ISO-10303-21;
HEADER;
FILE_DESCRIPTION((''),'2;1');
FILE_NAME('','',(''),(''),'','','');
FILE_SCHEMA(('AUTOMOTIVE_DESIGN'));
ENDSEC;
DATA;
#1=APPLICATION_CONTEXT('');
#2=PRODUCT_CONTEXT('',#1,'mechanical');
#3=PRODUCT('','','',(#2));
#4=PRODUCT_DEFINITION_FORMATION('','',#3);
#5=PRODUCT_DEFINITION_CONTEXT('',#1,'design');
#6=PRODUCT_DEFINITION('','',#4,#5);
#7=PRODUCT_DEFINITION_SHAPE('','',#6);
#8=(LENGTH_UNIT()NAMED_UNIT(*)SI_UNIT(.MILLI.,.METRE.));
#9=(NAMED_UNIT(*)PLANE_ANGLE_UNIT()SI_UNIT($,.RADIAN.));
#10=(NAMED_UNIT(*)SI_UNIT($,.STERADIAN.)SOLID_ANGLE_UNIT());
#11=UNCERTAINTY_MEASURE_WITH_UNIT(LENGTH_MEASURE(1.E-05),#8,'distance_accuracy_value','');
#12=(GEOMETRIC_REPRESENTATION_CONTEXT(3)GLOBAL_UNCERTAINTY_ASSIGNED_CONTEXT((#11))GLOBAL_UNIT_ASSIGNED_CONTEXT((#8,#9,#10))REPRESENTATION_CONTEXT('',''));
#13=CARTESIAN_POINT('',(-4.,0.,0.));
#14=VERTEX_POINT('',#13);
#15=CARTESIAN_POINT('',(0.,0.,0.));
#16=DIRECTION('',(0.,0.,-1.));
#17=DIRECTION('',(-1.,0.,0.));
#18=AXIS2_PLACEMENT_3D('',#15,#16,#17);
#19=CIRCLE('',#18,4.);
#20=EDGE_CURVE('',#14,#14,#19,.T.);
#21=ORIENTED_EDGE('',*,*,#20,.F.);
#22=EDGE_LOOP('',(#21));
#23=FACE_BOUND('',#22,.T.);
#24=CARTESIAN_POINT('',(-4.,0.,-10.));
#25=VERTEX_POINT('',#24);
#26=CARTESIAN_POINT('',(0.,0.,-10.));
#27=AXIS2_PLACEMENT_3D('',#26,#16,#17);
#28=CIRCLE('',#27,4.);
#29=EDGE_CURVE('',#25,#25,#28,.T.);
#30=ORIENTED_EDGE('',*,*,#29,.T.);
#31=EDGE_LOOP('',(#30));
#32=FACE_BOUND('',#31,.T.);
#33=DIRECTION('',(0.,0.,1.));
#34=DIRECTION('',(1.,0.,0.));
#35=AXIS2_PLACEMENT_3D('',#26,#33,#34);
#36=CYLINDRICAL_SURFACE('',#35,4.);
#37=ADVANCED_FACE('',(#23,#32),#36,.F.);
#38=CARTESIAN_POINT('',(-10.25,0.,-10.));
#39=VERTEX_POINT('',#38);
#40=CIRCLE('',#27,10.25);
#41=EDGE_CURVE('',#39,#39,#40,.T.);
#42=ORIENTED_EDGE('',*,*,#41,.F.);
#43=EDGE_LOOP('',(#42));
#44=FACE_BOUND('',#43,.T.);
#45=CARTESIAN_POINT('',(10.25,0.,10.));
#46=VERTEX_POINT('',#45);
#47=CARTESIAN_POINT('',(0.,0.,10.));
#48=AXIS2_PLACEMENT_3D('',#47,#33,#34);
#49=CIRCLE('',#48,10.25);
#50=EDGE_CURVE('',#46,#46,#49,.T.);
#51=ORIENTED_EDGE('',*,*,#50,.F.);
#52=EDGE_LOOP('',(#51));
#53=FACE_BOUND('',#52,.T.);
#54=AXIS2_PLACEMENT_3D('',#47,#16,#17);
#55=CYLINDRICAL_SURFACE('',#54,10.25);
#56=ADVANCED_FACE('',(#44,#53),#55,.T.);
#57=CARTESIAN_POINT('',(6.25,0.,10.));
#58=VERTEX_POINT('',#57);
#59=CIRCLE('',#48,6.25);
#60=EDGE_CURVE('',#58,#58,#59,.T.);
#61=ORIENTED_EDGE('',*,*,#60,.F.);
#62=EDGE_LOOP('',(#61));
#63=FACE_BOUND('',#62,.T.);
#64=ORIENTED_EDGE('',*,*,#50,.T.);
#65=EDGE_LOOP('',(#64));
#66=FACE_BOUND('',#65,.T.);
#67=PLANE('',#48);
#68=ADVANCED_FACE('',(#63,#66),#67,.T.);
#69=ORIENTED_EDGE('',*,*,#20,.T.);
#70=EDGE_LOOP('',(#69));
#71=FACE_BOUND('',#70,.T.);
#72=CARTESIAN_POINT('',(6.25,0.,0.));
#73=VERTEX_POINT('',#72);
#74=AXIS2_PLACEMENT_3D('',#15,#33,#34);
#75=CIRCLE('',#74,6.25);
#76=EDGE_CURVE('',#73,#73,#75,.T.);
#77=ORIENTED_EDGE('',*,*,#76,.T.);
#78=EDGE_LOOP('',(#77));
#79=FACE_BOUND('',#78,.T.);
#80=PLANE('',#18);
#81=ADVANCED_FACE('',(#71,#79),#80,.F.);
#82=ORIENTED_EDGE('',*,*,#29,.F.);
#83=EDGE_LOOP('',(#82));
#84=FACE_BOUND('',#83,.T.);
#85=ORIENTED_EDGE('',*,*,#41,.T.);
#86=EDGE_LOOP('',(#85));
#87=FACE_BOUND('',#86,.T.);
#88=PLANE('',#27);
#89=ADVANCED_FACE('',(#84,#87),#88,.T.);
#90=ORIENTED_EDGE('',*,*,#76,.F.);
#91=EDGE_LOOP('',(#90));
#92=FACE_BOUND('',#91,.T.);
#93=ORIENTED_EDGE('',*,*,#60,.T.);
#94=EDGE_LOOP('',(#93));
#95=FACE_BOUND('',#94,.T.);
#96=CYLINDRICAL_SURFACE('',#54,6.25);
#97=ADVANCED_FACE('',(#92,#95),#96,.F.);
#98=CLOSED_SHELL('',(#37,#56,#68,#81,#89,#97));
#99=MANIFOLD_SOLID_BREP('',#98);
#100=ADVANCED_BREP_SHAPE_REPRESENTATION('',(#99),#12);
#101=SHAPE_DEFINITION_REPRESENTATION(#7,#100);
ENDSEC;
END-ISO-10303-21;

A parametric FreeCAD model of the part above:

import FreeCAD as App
import Part
import Sketcher
from FreeCAD import Vector
Q = App.Units.Quantity

doc = App.newDocument("Part")
body = doc.addObject("PartDesign::Body", "Body")

# Sketch on XY plane
sketch1 = body.newObject("Sketcher::SketchObject", "Sketch")
sketch1.AttachmentSupport = (doc.getObject("XY_Plane"), [""])
sketch1.MapMode = "FlatFace"
sketch1.addGeometry([
    Part.Circle(Vector(0, 0, 0), Vector(0, 0, 1), 10),
    Part.Circle(Vector(0, 0, 0), Vector(0, 0, 1), 6),
], False)
sketch1.addConstraint([
    Sketcher.Constraint("Coincident", 0, 3, -1, 1),
    Sketcher.Constraint("Coincident", 1, 3, -1, 1),
    Sketcher.Constraint("Diameter", 0, Q("20.5 mm")),
    Sketcher.Constraint("Diameter", 1, Q("12.5 mm")),
])
pad1 = body.newObject("PartDesign::Pad", "Pad")
pad1.Profile = sketch1
pad1.Length = 10

# Sketch on XY plane
sketch2 = body.newObject("Sketcher::SketchObject", "Sketch001")
sketch2.AttachmentSupport = (doc.getObject("XY_Plane"), [""])
sketch2.MapMode = "FlatFace"
sketch2.AttachmentOffset = App.Placement(Vector(0, 0, -10), App.Rotation())
sketch2.addGeometry([
    Part.Circle(Vector(0, 0, 0), Vector(0, 0, 1), 10.2),
    Part.Circle(Vector(0, 0, 0), Vector(0, 0, 1), 4),
], False)
sketch2.addConstraint([
    Sketcher.Constraint("Coincident", 0, 3, -1, 1),
    Sketcher.Constraint("Coincident", 1, 3, -1, 1),
    Sketcher.Constraint("Diameter", 1, Q("8 mm")),
    Sketcher.Constraint("Diameter", 0, Q("20.5 mm")),
])
pad2 = body.newObject("PartDesign::Pad", "Pad001")
pad2.Profile = sketch2
pad2.Length = 10

doc.recompute()
